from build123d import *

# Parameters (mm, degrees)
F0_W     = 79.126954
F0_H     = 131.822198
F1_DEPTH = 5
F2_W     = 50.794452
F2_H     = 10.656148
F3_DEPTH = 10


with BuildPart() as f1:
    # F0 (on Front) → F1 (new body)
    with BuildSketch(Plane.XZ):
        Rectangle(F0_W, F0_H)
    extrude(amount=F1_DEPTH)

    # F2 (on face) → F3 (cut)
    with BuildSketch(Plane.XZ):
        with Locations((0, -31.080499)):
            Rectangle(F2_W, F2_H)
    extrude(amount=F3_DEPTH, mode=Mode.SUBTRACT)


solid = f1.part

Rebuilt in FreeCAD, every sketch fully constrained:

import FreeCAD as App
import Part
import Sketcher

V = App.Vector


def add_polygon(sketch, points):
    """Adds a closed chain of lines whose ends are joined by coincident constraints."""
    first, n = sketch.GeometryCount, len(points)
    for a, b in zip(points, points[1:] + points[:1]):
        sketch.addGeometry(Part.LineSegment(App.Vector(*a, 0), App.Vector(*b, 0)), False)
    for i in range(n):
        sketch.addConstraint(Sketcher.Constraint("Coincident", first + i, 2, first + (i + 1) % n, 1))

doc = App.newDocument("Part")
body = doc.addObject("PartDesign::Body", "Body")

# Sketch on XZ plane
sketch1 = body.newObject("Sketcher::SketchObject", "Sketch")
sketch1.AttachmentSupport = (doc.getObject("XZ_Plane"), [""])
sketch1.MapMode = "FlatFace"
add_polygon(sketch1, [(-40, 66), (-40, -66), (40, -66), (40, 66)])  # lines 0-3
sketch1.addConstraint([
    Sketcher.Constraint("Vertical", 0),
    Sketcher.Constraint("Horizontal", 1),
    Sketcher.Constraint("Vertical", 2),
    Sketcher.Constraint("Horizontal", 3),
    Sketcher.Constraint("Symmetric", 0, 2, 2, 2, -1, 1),
    Sketcher.Constraint("DistanceY", 0, 2, -1, 1, 65.911099),
    Sketcher.Constraint("DistanceX", 1, 1, 1, 2, 79.126954),
])
pad1 = body.newObject("PartDesign::Pad", "Pad")
pad1.Profile = sketch1
pad1.Length = 5

# Sketch on XZ plane
sketch2 = body.newObject("Sketcher::SketchObject", "Sketch001")
sketch2.AttachmentSupport = (doc.getObject("XZ_Plane"), [""])
sketch2.MapMode = "FlatFace"
add_polygon(sketch2, [(-25, -26), (-25, -36), (25, -36), (25, -26)])  # lines 0-3
sketch2.addConstraint([
    Sketcher.Constraint("Vertical", 0),
    Sketcher.Constraint("Horizontal", 1),
    Sketcher.Constraint("Vertical", 2),
    Sketcher.Constraint("Horizontal", 3),
    Sketcher.Constraint("DistanceX", 1, 1, 1, 2, 50.794452),
    Sketcher.Constraint("DistanceY", 0, 2, 0, 1, 10.656148),
    Sketcher.Constraint("DistanceX", 0, 2, -1, 1, 25.397226),
    Sketcher.Constraint("DistanceY", 0, 2, -1, 1, 36.408573),
])
pocket1 = body.newObject("PartDesign::Pocket", "Pocket")
pocket1.Profile = sketch2
pocket1.Length = 10
pocket1.Reversed = True

doc.recompute()
